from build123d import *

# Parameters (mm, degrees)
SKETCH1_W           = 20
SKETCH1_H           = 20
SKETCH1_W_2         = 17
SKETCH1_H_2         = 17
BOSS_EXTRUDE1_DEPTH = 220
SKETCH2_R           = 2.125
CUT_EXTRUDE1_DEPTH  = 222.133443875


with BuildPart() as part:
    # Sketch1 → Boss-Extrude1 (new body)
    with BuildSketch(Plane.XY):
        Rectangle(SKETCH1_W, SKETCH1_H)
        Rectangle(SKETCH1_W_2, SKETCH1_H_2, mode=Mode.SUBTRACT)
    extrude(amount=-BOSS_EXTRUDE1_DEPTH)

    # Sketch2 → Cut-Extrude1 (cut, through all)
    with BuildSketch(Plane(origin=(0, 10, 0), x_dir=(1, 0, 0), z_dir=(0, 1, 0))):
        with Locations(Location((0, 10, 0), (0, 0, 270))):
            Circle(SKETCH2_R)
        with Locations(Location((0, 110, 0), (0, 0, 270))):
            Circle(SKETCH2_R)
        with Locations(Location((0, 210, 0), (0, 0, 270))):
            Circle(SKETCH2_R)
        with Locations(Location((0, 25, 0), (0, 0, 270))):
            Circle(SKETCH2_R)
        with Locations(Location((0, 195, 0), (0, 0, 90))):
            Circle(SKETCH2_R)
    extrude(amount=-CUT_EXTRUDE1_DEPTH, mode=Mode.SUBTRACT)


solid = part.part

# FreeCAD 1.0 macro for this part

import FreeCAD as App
import Part
import Sketcher

V = App.Vector
Q = App.Units.Quantity

doc = App.newDocument("Part")
params = doc.addObject("Spreadsheet::Sheet", "Params")
for row, (alias, value) in enumerate([
    ("sketch1_width", "20 mm"),
    ("sketch1_width2", "17 mm"),
    ("pad1_length", "220 mm"),
    ("sketch2_diameter", "4.25 mm"),
], start=1):
    params.set(f"A{row}", alias)
    params.set(f"B{row}", "=" + value)
    params.setAlias(f"B{row}", alias)

body = doc.addObject("PartDesign::Body", "Body")

# Sketch on XY plane
sketch1 = body.newObject("Sketcher::SketchObject", "Sketch")
sketch1.AttachmentSupport = (doc.getObject("XY_Plane"), [""])
sketch1.MapMode = "FlatFace"
sketch1.addGeometry([
    Part.LineSegment(V(-10, 10, 0), V(-10, -10, 0)),  # 0
    Part.LineSegment(V(-10, -10, 0), V(10, -10, 0)),  # 1
    Part.LineSegment(V(10, -10, 0), V(10, 10, 0)),  # 2
    Part.LineSegment(V(10, 10, 0), V(-10, 10, 0)),  # 3
    Part.LineSegment(V(8, -8, 0), V(-8, -8, 0)),  # 4
    Part.LineSegment(V(-8, -8, 0), V(-8, 8, 0)),  # 5
    Part.LineSegment(V(-8, 8, 0), V(8, 8, 0)),  # 6
    Part.LineSegment(V(8, 8, 0), V(8, -8, 0)),  # 7
], False)
sketch1.addConstraint([
    Sketcher.Constraint("Coincident", 0, 2, 1, 1),
    Sketcher.Constraint("Coincident", 1, 2, 2, 1),
    Sketcher.Constraint("Coincident", 2, 2, 3, 1),
    Sketcher.Constraint("Coincident", 3, 2, 0, 1),
    Sketcher.Constraint("Coincident", 4, 2, 5, 1),
    Sketcher.Constraint("Coincident", 5, 2, 6, 1),
    Sketcher.Constraint("Coincident", 6, 2, 7, 1),
    Sketcher.Constraint("Coincident", 7, 2, 4, 1),
    Sketcher.Constraint("Vertical", 0),
    Sketcher.Constraint("Horizontal", 1),
    Sketcher.Constraint("Vertical", 2),
    Sketcher.Constraint("Horizontal", 3),
    Sketcher.Constraint("Horizontal", 4),
    Sketcher.Constraint("Vertical", 5),
    Sketcher.Constraint("Horizontal", 6),
    Sketcher.Constraint("Vertical", 7),
    Sketcher.Constraint("Symmetric", 0, 2, 2, 2, -1, 1),
    Sketcher.Constraint("Symmetric", 4, 2, 6, 2, -1, 1),
    Sketcher.Constraint("Equal", 3, 0),
    Sketcher.Constraint("Equal", 6, 5),
    Sketcher.Constraint("DistanceX", 1, 1, 1, 2, Q("20 mm")),
    Sketcher.Constraint("DistanceX", 4, 2, 4, 1, Q("17 mm")),
])
sketch1.setExpression("Constraints[20]", "Params.sketch1_width")
sketch1.setExpression("Constraints[21]", "Params.sketch1_width2")
pad1 = body.newObject("PartDesign::Pad", "Pad")
pad1.Profile = sketch1
pad1.setExpression("Length", "Params.pad1_length")
pad1.Reversed = True

# Sketch on XZ plane
sketch2 = body.newObject("Sketcher::SketchObject", "Sketch001")
sketch2.AttachmentSupport = (doc.getObject("XZ_Plane"), [""])
sketch2.MapMode = "FlatFace"
sketch2.AttachmentOffset = App.Placement(V(0, 0, -10), App.Rotation())
sketch2.addGeometry([
    Part.Circle(V(0, -10, 0), V(0, 0, 1), 2.1),  # 0
    Part.Circle(V(0, -110, 0), V(0, 0, 1), 2.1),  # 1
    Part.Circle(V(0, -210, 0), V(0, 0, 1), 2.1),  # 2
    Part.Circle(V(0, -25, 0), V(0, 0, 1), 2.1),  # 3
    Part.Circle(V(0, -195, 0), V(0, 0, 1), 2.1),  # 4
], False)
sketch2.addConstraint([
    Sketcher.Constraint("Equal", 0, 1),
    Sketcher.Constraint("Equal", 1, 2),
    Sketcher.Constraint("Equal", 2, 3),
    Sketcher.Constraint("Equal", 3, 4),
    Sketcher.Constraint("PointOnObject", 0, 3, -2),
    Sketcher.Constraint("PointOnObject", 1, 3, -2),
    Sketcher.Constraint("PointOnObject", 2, 3, -2),
    Sketcher.Constraint("PointOnObject", 3, 3, -2),
    Sketcher.Constraint("PointOnObject", 4, 3, -2),
    Sketcher.Constraint("Diameter", 0, Q("4.25 mm")),
    Sketcher.Constraint("DistanceY", 0, 3, -1, 1, Q("10 mm")),
    Sketcher.Constraint("DistanceY", 1, 3, -1, 1, Q("110 mm")),
    Sketcher.Constraint("DistanceY", 2, 3, -1, 1, Q("210 mm")),
    Sketcher.Constraint("DistanceY", 3, 3, -1, 1, Q("25 mm")),
    Sketcher.Constraint("DistanceY", 4, 3, -1, 1, Q("195 mm")),
])
sketch2.setExpression("Constraints[9]", "Params.sketch2_diameter")
pocket1 = body.newObject("PartDesign::Pocket", "Pocket")
pocket1.Profile = sketch2
pocket1.Type = "ThroughAll"
pocket1.Reversed = True

doc.recompute()
